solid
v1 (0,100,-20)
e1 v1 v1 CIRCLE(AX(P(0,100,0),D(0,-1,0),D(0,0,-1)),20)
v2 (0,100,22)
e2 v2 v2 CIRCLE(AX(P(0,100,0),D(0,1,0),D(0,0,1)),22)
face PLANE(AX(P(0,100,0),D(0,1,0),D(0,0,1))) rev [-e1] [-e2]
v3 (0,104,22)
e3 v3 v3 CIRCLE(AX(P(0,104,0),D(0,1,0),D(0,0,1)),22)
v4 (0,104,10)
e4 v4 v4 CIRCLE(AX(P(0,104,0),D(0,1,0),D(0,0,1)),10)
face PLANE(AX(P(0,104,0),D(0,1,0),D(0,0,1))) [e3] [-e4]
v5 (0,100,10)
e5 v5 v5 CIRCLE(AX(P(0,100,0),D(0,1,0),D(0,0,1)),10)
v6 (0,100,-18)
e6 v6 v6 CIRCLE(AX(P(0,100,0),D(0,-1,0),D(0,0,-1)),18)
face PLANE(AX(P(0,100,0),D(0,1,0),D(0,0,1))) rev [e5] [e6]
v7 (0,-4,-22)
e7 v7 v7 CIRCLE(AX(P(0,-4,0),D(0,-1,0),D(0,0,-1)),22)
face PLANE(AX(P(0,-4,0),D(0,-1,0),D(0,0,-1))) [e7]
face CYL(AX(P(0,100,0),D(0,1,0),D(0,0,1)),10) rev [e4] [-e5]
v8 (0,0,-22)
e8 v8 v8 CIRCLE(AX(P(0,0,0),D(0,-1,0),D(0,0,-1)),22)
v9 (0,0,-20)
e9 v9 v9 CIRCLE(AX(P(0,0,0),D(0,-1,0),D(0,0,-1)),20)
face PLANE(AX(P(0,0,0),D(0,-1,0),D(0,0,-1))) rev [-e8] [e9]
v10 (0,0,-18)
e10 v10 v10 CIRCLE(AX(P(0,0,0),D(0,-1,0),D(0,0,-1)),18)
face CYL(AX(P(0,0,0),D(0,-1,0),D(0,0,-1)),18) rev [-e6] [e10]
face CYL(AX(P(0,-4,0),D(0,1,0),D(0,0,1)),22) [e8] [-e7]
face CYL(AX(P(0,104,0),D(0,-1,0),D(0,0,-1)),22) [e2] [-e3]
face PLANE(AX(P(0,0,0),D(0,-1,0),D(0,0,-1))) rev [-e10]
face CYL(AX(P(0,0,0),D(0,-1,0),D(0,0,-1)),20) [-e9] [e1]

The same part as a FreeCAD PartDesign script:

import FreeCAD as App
import Part
import Sketcher
from FreeCAD import Vector


def add_polygon(sketch, points):
    """Adds a closed chain of lines whose ends are joined by coincident constraints."""
    first, n = sketch.GeometryCount, len(points)
    for a, b in zip(points, points[1:] + points[:1]):
        sketch.addGeometry(Part.LineSegment(App.Vector(*a, 0), App.Vector(*b, 0)), False)
    for i in range(n):
        sketch.addConstraint(Sketcher.Constraint("Coincident", first + i, 2, first + (i + 1) % n, 1))

doc = App.newDocument("Part")
body = doc.addObject("PartDesign::Body", "Body")

sketch1 = doc.addObject("Sketcher::SketchObject", "Sketch")
body.addObject(sketch1)
sketch1.AttachmentSupport = (doc.XY_Plane, [""])
sketch1.MapMode = "FlatFace"
add_polygon(sketch1, [(18, 100), (18, 0), (20, 0), (20, 100)])
sketch1.addConstraint([
    Sketcher.Constraint("Vertical", 0),
    Sketcher.Constraint("Horizontal", 1),
    Sketcher.Constraint("Vertical", 2),
    Sketcher.Constraint("Horizontal", 3),
    Sketcher.Constraint("PointOnObject", 0, 2, -1),
    Sketcher.Constraint("DistanceX", 1, 1, 1, 2, 2.0),
    Sketcher.Constraint("DistanceY", 0, 2, 0, 1, 100.0),
    Sketcher.Constraint("DistanceX", -1, 1, 0, 2, 18.0),
])
revolution = doc.addObject("PartDesign::Revolution", "Revolution")
body.addObject(revolution)
revolution.Profile = sketch1
revolution.ReferenceAxis = (sketch1, ["V_Axis"])
revolution.Angle = 360

sketch2 = doc.addObject("Sketcher::SketchObject", "Sketch001")
body.addObject(sketch2)
sketch2.AttachmentSupport = (doc.XZ_Plane, [""])
sketch2.MapMode = "FlatFace"
sketch2.AttachmentOffset = App.Placement(Vector(0, 0, -100), App.Rotation())
sketch2.addGeometry(Part.Circle(Vector(0, 0, 0), Vector(0, 0, 1), 22), False)
sketch2.addConstraint([
    Sketcher.Constraint("Coincident", 0, 3, -1, 1),
    Sketcher.Constraint("Diameter", 0, 44.0),
])
pad1 = doc.addObject("PartDesign::Pad", "Pad")
body.addObject(pad1)
pad1.Profile = sketch2
pad1.Length = 4
pad1.Reversed = True

sketch3 = doc.addObject("Sketcher::SketchObject", "Sketch002")
body.addObject(sketch3)
sketch3.AttachmentSupport = (doc.XZ_Plane, [""])
sketch3.MapMode = "FlatFace"
sketch3.AttachmentOffset = App.Placement(Vector(0, 0, 4), App.Rotation())
sketch3.addGeometry(Part.Circle(Vector(0, 0, 0), Vector(0, 0, 1), 22), False)
sketch3.addConstraint([
    Sketcher.Constraint("Coincident", 0, 3, -1, 1),
    Sketcher.Constraint("Diameter", 0, 44.0),
])
pad2 = doc.addObject("PartDesign::Pad", "Pad001")
body.addObject(pad2)
pad2.Profile = sketch3
pad2.Length = 4
pad2.Reversed = True

sketch4 = doc.addObject("Sketcher::SketchObject", "Sketch003")
body.addObject(sketch4)
sketch4.AttachmentSupport = (doc.XZ_Plane, [""])
sketch4.MapMode = "FlatFace"
sketch4.AttachmentOffset = App.Placement(Vector(0, 0, -104), App.Rotation())
sketch4.addGeometry(Part.Circle(Vector(0, 0, 0), Vector(0, 0, 1), 10), False)
sketch4.addConstraint([
    Sketcher.Constraint("Coincident", 0, 3, -1, 1),
    Sketcher.Constraint("Diameter", 0, 20.0),
])
pocket1 = doc.addObject("PartDesign::Pocket", "Pocket")
body.addObject(pocket1)
pocket1.Profile = sketch4
pocket1.Length = 4
pocket1.Reversed = True

doc.recompute()
